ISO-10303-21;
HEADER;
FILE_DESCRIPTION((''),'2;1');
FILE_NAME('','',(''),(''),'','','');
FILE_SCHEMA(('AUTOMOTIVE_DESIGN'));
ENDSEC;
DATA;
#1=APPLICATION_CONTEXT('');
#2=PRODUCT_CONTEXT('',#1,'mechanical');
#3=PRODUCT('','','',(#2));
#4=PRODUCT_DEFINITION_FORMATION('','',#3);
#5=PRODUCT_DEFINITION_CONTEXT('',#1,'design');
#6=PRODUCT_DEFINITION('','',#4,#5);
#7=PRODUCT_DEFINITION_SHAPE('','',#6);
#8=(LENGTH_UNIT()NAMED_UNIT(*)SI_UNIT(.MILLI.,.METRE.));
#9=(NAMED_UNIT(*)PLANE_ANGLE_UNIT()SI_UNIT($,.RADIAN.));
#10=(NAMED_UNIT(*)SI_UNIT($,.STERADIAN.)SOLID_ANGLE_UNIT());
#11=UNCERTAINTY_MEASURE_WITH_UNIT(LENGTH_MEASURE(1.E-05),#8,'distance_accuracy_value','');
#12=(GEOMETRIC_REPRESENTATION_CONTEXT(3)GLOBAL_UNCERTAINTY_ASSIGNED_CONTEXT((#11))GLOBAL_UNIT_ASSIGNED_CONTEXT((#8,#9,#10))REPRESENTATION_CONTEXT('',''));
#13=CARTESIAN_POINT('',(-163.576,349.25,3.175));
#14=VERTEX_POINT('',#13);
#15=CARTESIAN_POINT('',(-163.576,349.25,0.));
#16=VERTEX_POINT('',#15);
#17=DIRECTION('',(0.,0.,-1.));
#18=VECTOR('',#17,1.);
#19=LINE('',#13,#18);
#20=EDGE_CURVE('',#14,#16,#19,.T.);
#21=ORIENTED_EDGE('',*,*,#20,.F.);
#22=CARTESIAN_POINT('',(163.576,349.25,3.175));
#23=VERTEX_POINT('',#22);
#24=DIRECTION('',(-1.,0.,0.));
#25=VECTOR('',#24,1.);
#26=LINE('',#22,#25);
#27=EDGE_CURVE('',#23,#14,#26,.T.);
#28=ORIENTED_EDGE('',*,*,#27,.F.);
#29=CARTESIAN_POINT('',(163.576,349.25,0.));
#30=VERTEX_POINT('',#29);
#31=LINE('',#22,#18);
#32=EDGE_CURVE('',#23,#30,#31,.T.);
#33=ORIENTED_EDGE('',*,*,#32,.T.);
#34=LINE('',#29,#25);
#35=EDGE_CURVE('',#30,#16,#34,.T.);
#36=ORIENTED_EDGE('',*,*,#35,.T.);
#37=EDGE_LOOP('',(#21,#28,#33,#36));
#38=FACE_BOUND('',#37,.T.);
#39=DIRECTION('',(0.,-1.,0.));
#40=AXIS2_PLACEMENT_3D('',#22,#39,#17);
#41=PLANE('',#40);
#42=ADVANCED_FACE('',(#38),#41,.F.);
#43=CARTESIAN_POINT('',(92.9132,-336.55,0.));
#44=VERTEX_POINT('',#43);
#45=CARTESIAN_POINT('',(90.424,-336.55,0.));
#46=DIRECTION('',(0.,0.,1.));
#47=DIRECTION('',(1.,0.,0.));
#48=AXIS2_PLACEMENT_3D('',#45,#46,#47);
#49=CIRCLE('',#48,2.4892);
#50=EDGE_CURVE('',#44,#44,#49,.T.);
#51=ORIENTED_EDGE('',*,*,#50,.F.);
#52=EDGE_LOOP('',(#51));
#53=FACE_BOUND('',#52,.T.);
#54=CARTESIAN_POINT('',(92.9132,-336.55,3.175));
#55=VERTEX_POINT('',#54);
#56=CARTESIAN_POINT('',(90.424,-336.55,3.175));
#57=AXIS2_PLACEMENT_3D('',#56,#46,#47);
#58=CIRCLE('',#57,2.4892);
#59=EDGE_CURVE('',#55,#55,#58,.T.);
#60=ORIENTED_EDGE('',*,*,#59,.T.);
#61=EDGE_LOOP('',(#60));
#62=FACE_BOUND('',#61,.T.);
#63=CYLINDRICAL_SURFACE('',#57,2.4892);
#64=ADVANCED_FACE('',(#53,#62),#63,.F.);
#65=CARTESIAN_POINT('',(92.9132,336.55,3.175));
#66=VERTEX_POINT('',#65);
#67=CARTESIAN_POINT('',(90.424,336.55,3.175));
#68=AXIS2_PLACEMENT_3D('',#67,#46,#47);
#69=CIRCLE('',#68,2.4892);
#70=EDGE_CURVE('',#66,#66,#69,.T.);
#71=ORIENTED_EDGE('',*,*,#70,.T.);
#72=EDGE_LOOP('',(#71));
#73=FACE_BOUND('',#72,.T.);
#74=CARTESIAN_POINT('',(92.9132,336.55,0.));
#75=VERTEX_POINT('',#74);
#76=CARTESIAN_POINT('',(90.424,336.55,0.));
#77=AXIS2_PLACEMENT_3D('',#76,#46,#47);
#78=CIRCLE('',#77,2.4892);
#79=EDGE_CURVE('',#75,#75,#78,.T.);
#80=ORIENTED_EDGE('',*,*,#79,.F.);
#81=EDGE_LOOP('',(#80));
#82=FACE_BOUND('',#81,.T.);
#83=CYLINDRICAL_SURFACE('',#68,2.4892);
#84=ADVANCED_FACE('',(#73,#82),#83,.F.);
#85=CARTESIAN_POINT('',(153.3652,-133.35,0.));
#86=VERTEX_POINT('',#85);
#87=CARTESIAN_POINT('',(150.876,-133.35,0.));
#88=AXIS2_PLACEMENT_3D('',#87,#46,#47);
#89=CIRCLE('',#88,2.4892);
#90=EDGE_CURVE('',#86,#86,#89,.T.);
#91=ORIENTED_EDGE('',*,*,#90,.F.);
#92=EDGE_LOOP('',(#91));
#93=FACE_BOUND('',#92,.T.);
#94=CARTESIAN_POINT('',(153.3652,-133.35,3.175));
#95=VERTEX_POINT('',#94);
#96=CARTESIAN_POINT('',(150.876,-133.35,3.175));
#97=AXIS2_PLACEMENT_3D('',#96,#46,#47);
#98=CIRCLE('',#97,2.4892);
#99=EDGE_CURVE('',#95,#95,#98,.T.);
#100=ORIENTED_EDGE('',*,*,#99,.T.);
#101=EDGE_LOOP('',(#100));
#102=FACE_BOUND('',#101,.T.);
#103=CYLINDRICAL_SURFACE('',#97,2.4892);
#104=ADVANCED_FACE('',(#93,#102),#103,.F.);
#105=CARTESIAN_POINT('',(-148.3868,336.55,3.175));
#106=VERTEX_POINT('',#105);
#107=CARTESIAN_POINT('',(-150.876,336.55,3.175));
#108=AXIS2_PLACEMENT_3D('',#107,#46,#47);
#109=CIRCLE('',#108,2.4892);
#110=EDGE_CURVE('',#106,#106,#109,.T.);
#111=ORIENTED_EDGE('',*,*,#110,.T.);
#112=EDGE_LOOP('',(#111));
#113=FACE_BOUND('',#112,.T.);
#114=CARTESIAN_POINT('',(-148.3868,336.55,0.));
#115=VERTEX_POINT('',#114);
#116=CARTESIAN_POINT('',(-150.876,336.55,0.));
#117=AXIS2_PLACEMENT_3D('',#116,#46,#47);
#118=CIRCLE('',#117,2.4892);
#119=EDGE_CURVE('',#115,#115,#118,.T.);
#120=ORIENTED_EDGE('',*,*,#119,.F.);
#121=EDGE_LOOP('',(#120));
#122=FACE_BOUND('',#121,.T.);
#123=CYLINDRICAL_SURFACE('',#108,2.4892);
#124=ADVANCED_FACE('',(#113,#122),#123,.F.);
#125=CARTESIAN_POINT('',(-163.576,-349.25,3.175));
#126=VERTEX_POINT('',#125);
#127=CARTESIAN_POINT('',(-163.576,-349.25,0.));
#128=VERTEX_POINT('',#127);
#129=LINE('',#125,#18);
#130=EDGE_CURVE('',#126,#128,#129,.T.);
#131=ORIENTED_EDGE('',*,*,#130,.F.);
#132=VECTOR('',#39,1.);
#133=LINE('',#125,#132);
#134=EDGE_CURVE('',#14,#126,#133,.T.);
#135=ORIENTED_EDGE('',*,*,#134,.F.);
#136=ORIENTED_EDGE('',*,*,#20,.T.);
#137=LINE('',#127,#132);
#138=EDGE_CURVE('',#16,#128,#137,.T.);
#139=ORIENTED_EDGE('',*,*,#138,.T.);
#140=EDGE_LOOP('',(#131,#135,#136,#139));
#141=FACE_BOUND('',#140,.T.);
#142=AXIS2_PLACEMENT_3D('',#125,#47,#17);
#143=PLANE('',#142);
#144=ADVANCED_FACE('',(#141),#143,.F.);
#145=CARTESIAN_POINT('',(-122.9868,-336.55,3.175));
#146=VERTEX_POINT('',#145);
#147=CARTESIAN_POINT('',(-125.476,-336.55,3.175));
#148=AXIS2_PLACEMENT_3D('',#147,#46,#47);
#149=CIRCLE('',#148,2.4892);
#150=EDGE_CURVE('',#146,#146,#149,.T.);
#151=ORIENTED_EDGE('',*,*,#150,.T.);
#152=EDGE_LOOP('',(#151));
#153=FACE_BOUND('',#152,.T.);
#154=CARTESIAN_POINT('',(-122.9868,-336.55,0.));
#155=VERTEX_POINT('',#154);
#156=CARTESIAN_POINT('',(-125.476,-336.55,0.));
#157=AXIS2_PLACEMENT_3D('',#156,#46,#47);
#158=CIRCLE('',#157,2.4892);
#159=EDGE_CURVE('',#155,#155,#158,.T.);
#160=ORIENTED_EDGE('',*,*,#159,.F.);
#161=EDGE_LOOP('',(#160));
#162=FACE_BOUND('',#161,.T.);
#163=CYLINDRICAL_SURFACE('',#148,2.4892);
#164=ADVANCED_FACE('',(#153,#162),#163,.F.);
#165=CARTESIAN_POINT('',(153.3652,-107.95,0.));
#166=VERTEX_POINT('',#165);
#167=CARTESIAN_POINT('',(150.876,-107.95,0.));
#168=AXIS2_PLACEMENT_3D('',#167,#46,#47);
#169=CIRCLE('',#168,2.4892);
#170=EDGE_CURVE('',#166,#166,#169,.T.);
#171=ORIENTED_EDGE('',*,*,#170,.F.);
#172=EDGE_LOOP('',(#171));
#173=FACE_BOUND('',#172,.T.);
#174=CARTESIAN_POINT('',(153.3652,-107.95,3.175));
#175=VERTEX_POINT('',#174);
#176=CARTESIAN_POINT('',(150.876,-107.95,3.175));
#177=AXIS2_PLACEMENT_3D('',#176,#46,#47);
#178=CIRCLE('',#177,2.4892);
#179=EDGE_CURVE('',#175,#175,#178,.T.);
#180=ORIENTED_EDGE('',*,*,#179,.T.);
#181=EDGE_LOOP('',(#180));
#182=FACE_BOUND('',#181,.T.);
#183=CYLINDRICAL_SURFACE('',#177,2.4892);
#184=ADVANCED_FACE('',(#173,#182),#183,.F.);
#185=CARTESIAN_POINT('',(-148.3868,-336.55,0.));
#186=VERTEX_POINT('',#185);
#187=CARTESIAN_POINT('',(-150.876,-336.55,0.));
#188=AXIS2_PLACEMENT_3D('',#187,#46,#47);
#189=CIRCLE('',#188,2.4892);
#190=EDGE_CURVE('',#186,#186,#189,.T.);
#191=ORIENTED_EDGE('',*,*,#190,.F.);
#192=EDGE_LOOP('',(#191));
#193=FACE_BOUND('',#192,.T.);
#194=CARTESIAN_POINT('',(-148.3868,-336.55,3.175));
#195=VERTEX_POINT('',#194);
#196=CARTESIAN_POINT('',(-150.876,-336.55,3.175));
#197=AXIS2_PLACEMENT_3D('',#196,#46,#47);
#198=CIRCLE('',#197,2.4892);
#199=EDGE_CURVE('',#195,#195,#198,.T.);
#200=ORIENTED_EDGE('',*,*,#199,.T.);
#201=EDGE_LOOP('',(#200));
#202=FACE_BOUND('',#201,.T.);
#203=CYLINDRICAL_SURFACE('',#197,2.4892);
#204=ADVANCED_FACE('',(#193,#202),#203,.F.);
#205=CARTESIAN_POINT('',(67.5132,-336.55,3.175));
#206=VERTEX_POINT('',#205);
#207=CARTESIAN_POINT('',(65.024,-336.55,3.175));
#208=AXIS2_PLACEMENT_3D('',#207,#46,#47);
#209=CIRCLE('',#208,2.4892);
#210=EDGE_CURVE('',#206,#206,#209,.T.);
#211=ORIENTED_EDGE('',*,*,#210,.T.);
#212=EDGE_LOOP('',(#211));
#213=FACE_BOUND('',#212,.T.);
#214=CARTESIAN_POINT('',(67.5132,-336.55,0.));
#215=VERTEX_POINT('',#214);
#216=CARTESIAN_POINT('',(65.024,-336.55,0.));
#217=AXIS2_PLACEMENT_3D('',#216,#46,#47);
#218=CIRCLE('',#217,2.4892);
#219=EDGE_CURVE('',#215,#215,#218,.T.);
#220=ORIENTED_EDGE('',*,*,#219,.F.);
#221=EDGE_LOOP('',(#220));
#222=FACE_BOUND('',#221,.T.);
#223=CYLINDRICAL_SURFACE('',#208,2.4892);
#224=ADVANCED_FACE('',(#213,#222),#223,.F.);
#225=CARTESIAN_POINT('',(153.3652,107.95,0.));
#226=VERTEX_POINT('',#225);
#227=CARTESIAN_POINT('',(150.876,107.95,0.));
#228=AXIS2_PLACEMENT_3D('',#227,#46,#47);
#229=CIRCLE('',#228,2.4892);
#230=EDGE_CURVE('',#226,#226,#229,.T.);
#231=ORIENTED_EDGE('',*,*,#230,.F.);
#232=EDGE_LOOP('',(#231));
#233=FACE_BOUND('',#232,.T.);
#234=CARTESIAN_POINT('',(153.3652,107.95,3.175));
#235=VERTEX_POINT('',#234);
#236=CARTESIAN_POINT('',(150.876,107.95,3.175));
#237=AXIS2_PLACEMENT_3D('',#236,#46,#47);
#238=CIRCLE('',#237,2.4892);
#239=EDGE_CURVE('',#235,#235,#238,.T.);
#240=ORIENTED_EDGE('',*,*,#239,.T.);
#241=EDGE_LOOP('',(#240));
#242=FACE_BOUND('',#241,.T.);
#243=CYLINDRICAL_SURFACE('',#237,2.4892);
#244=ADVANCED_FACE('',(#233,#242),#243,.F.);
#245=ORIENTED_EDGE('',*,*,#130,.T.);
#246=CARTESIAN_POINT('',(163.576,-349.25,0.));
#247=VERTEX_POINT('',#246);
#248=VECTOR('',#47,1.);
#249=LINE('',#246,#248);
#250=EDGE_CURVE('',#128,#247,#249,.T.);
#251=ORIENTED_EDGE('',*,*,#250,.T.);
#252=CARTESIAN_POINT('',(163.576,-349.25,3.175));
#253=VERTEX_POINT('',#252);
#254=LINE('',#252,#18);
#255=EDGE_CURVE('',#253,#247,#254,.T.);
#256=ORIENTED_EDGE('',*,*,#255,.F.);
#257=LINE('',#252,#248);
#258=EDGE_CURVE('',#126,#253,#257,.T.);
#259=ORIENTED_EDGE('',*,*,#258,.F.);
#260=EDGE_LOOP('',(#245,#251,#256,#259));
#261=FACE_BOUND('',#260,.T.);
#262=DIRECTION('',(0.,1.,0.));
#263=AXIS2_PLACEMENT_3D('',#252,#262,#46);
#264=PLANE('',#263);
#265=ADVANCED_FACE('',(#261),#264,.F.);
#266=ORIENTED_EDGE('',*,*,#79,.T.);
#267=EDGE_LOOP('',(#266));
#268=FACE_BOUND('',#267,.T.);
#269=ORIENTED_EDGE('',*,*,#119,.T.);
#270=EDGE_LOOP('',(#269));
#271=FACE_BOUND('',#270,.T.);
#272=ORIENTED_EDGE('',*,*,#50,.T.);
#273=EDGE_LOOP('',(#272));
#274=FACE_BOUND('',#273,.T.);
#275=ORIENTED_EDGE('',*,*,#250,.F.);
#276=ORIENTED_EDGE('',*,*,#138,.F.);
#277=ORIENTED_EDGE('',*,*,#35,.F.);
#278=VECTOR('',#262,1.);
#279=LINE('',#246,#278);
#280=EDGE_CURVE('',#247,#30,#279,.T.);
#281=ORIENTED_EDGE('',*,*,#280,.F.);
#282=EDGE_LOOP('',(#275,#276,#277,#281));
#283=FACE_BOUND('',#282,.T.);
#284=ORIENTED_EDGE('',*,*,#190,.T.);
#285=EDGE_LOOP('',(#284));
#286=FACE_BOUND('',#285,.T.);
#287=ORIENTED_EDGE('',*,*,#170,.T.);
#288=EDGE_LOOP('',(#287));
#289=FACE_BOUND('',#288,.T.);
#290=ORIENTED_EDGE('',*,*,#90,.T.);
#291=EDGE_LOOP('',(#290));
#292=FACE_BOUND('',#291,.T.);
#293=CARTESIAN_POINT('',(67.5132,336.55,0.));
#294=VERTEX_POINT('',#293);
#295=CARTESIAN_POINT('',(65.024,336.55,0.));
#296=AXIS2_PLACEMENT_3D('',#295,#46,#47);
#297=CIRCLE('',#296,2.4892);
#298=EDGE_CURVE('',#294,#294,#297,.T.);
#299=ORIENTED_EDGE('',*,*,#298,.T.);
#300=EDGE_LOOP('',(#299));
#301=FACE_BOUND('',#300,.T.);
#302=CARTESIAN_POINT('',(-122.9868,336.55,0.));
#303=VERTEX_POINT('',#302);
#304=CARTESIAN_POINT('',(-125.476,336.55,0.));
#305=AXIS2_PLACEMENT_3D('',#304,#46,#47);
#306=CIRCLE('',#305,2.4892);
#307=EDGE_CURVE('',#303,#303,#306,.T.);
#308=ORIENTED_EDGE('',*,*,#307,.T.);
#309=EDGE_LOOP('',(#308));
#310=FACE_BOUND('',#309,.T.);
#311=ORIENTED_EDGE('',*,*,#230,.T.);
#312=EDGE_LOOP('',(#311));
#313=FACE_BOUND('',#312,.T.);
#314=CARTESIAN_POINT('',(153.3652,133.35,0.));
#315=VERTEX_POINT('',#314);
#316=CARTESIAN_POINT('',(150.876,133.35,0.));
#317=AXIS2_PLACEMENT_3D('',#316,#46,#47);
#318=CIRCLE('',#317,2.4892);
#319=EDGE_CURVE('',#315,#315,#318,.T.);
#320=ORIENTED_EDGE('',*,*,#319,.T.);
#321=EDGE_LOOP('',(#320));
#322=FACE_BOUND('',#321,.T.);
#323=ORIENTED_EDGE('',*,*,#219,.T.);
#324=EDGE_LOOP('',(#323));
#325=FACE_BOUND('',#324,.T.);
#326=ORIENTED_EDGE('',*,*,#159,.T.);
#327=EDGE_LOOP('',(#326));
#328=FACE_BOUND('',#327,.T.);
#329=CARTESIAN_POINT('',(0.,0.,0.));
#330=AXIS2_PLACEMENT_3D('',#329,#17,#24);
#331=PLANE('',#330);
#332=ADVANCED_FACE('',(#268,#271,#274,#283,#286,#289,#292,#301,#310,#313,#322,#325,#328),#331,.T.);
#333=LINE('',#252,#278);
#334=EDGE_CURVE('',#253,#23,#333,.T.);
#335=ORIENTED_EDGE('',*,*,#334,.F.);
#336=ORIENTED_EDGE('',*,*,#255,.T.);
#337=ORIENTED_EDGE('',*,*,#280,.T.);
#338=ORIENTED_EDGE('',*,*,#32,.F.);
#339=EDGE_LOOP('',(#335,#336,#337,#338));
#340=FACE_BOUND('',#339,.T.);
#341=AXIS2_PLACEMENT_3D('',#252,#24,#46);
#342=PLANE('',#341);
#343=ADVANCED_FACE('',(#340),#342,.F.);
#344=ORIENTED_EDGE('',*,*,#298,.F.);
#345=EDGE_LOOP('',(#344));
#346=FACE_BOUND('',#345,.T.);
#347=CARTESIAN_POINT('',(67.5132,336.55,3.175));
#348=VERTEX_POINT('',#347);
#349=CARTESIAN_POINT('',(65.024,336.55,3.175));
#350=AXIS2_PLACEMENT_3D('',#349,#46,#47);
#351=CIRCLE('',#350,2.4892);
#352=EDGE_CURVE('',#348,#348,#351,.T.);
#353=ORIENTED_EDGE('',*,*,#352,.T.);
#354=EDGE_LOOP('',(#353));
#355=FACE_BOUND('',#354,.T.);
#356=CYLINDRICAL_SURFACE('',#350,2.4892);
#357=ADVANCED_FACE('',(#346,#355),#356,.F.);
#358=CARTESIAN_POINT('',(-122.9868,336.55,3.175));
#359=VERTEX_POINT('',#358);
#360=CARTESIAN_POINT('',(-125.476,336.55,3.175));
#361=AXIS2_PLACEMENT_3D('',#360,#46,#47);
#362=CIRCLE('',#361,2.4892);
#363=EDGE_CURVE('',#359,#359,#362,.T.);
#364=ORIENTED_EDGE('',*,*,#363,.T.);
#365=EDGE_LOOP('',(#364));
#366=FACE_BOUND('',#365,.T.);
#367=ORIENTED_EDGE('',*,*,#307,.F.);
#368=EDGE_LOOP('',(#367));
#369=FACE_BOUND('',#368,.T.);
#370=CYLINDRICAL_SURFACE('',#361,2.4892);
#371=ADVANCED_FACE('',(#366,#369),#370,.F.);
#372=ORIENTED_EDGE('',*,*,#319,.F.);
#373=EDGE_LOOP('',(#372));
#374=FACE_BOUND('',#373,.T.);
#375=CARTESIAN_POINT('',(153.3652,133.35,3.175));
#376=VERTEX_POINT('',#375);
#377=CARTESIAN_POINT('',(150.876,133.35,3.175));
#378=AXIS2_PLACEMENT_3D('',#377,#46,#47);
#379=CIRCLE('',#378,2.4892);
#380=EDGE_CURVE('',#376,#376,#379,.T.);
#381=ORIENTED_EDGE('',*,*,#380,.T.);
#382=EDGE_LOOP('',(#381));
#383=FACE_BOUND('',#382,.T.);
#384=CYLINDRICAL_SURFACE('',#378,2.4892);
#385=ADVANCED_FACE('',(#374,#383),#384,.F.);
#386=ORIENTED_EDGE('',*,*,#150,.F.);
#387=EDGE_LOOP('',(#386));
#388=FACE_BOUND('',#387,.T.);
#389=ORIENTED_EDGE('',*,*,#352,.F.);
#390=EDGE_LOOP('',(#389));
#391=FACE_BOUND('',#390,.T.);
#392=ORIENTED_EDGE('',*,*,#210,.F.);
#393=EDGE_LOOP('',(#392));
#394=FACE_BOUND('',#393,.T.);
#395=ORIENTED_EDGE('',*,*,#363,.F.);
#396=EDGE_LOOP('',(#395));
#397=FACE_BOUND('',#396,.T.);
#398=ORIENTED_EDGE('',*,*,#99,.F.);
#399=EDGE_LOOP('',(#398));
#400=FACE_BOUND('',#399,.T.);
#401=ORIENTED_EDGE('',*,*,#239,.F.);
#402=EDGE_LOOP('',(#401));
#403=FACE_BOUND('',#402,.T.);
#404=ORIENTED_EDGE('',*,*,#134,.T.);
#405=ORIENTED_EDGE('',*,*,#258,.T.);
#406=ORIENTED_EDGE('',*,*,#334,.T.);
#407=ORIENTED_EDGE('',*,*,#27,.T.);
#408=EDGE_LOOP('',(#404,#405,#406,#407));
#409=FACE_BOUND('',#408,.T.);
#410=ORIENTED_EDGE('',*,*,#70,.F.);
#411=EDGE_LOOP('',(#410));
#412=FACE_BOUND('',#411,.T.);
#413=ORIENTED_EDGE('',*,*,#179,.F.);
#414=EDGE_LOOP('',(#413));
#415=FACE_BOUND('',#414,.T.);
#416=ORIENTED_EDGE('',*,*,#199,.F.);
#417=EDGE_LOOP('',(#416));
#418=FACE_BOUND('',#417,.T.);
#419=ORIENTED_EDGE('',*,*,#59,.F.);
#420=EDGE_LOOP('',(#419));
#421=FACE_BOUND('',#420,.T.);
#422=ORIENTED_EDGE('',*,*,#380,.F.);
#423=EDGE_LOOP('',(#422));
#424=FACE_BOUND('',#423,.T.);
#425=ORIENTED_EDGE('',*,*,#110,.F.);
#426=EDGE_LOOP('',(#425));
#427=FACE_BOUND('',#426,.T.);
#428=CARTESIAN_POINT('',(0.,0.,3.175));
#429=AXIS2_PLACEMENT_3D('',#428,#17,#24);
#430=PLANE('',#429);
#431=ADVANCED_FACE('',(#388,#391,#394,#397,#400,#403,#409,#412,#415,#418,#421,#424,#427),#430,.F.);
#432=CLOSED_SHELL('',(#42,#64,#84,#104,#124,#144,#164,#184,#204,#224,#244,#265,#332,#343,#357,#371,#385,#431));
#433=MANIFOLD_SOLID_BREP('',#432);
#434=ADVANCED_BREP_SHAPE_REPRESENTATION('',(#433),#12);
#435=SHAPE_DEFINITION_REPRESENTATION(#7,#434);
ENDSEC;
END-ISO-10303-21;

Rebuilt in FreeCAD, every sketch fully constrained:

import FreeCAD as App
import Part
import Sketcher
Q = App.Units.Quantity


def add_polygon(sketch, points):
    """Adds a closed chain of lines whose ends are joined by coincident constraints."""
    first, n = sketch.GeometryCount, len(points)
    for a, b in zip(points, points[1:] + points[:1]):
        sketch.addGeometry(Part.LineSegment(App.Vector(*a, 0), App.Vector(*b, 0)), False)
    for i in range(n):
        sketch.addConstraint(Sketcher.Constraint("Coincident", first + i, 2, first + (i + 1) % n, 1))

doc = App.newDocument("Part")
params = doc.addObject("Spreadsheet::Sheet", "Params")
for row, (alias, value) in enumerate([
    ("sketch1_height", "27.5 in"),
    ("sketch1_width", "12.88 in"),
    ("pad1_length", "0.125 in"),
    ("sketch2_diameter", "0.196 in"),
    ("hole_diameter", "0.196 in"),
], start=1):
    params.set(f"A{row}", alias)
    params.set(f"B{row}", "=" + value)
    params.setAlias(f"B{row}", alias)

body = doc.addObject("PartDesign::Body", "Body")

sketch1 = body.newObject("Sketcher::SketchObject", "Sketch")
sketch1.AttachmentSupport = (doc.getObject("XY_Plane"), [""])
sketch1.MapMode = "FlatFace"
add_polygon(sketch1, [(-164, -349), (164, -349), (164, 349), (-164, 349)])
sketch1.addConstraint([
    Sketcher.Constraint("Horizontal", 0),
    Sketcher.Constraint("Vertical", 1),
    Sketcher.Constraint("Horizontal", 2),
    Sketcher.Constraint("Vertical", 3),
    Sketcher.Constraint("Symmetric", 0, 2, 2, 2, -1, 1),
    Sketcher.Constraint("DistanceY", 1, 1, 1, 2, Q("27.5 in")),
    Sketcher.Constraint("DistanceX", 0, 1, 0, 2, Q("12.88 in")),
])
sketch1.setExpression("Constraints[9]", "Params.sketch1_height")
sketch1.setExpression("Constraints[10]", "Params.sketch1_width")
pad1 = body.newObject("PartDesign::Pad", "Pad")
pad1.Profile = sketch1
pad1.setExpression("Length", "Params.pad1_length")

sketch2 = body.newObject("Sketcher::SketchObject", "Sketch001")
sketch2.AttachmentSupport = (doc.getObject("XY_Plane"), [""])
sketch2.MapMode = "FlatFace"
sketch2.AttachmentOffset = App.Placement(App.Vector(0, 0, 0.125 * 25.4), App.Rotation())
sketch2.addGeometry([
    Part.Circle(App.Vector(-150.9, 336.6, 0), App.Vector(0, 0, 1), 2.5),
    Part.Circle(App.Vector(-125.5, 336.6, 0), App.Vector(0, 0, 1), 2.5),
    Part.Circle(App.Vector(65, 336.6, 0), App.Vector(0, 0, 1), 2.5),
    Part.Circle(App.Vector(90.4, 336.6, 0), App.Vector(0, 0, 1), 2.5),
    Part.Circle(App.Vector(90.4, -336.6, 0), App.Vector(0, 0, 1), 2.5),
    Part.Circle(App.Vector(65, -336.6, 0), App.Vector(0, 0, 1), 2.5),
    Part.Circle(App.Vector(-125.5, -336.6, 0), App.Vector(0, 0, 1), 2.5),
    Part.Circle(App.Vector(-150.9, -336.6, 0), App.Vector(0, 0, 1), 2.5),
    Part.Circle(App.Vector(-371.8, -199.7, 0), App.Vector(0, 0, 1), 2.5),
    Part.Circle(App.Vector(150.9, 133.3, 0), App.Vector(0, 0, 1), 2.5),
    Part.Circle(App.Vector(150.9, 108, 0), App.Vector(0, 0, 1), 2.5),
    Part.Circle(App.Vector(150.9, -108, 0), App.Vector(0, 0, 1), 2.5),
    Part.Circle(App.Vector(150.9, -133.3, 0), App.Vector(0, 0, 1), 2.5),
], False)
sketch2.addConstraint([
    Sketcher.Constraint("Equal", 0, 1),
    Sketcher.Constraint("Equal", 1, 2),
    Sketcher.Constraint("Equal", 2, 3),
    Sketcher.Constraint("Equal", 3, 4),
    Sketcher.Constraint("Equal", 4, 5),
    Sketcher.Constraint("Equal", 5, 6),
    Sketcher.Constraint("Equal", 6, 7),
    Sketcher.Constraint("Equal", 7, 8),
    Sketcher.Constraint("Equal", 8, 9),
    Sketcher.Constraint("Equal", 9, 10),
    Sketcher.Constraint("Equal", 10, 11),
    Sketcher.Constraint("Equal", 11, 12),
    Sketcher.Constraint("Symmetric", 3, 3, 4, 3, -1),
    Sketcher.Constraint("Symmetric", 2, 3, 5, 3, -1),
    Sketcher.Constraint("Symmetric", 1, 3, 6, 3, -1),
    Sketcher.Constraint("Symmetric", 0, 3, 7, 3, -1),
    Sketcher.Constraint("Symmetric", 10, 3, 11, 3, -1),
    Sketcher.Constraint("Symmetric", 9, 3, 12, 3, -1),
    Sketcher.Constraint("Horizontal", 0, 3, 1, 3),
    Sketcher.Constraint("Horizontal", 1, 3, 2, 3),
    Sketcher.Constraint("Horizontal", 2, 3, 3, 3),
    Sketcher.Constraint("Vertical", 9, 3, 10, 3),
    Sketcher.Constraint("Diameter", 0, Q("0.196 in")),
    Sketcher.Constraint("DistanceX", 0, 3, 1, 3, Q("1 in")),
    Sketcher.Constraint("DistanceX", 2, 3, 3, 3, Q("1 in")),
    Sketcher.Constraint("DistanceY", 9, 3, 3, 3, Q("8 in")),
    Sketcher.Constraint("DistanceY", 10, 3, 9, 3, Q("1 in")),
    Sketcher.Constraint("DistanceX", 1, 3, 2, 3, Q("7.5 in")),
    Sketcher.Constraint("DistanceY", 4, 3, 3, 3, Q("26.5 in")),
    Sketcher.Constraint("DistanceX", 0, 3, -1, 1, Q("5.94 in")),
    Sketcher.Constraint("DistanceX", -1, 1, 9, 3, Q("5.94 in")),
    Sketcher.Constraint("DistanceX", 8, 3, -1, 1, 371.836154),
    Sketcher.Constraint("DistanceY", 8, 3, -1, 1, 199.719855),
])
sketch2.setExpression("Constraints[22]", "Params.sketch2_diameter")
doc.recompute()
hole = body.newObject("PartDesign::Hole", "Hole")
hole.Profile = sketch2
hole.ThreadType = "None"
hole.setExpression("Diameter", "Params.hole_diameter")
hole.DepthType = "ThroughAll"

doc.recompute()
